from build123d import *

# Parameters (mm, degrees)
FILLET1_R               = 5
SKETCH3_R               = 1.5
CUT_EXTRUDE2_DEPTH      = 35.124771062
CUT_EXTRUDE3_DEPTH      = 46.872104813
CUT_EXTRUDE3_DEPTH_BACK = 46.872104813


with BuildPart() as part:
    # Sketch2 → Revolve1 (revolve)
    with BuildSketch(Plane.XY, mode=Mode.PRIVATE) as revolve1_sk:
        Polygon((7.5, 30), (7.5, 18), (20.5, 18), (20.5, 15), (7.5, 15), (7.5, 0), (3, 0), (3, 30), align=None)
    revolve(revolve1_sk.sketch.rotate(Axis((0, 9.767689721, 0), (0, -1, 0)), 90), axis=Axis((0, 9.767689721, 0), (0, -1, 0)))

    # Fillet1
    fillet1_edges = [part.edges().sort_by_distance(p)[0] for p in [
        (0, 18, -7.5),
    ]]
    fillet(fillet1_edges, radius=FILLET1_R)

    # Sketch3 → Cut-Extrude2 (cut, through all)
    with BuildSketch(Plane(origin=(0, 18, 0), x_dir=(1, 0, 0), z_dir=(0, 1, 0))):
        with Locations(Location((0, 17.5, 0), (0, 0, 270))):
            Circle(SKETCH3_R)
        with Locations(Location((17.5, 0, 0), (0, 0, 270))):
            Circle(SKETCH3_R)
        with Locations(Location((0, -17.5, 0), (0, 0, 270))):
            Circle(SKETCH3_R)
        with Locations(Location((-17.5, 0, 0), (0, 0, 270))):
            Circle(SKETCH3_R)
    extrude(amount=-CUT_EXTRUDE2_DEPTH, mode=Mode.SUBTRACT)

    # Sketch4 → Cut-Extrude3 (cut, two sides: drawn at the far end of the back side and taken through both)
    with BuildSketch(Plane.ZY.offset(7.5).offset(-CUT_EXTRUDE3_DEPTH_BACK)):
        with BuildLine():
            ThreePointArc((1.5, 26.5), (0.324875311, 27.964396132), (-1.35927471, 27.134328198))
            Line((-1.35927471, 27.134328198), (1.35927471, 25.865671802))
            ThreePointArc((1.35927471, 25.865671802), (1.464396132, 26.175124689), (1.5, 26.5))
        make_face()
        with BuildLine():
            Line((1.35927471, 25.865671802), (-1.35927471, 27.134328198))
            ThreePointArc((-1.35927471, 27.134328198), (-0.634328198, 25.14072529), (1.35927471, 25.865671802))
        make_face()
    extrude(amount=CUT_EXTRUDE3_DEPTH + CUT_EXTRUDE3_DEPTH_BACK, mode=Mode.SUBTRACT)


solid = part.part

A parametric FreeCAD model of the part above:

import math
import FreeCAD as App
import Part
import Sketcher
Q = App.Units.Quantity


def edges_at(feature, points):
    """Names of the edges that pass closest to the given points."""
    edges = feature.Shape.Edges
    near = lambda p: min(range(len(edges)), key=lambda i: edges[i].distToShape(Part.Vertex(*p))[0])
    return sorted({f"Edge{near(p) + 1}" for p in points})

doc = App.newDocument("Part")
body = doc.addObject("PartDesign::Body", "Body")

sketch1 = doc.addObject("Sketcher::SketchObject", "Sketch")
body.addObject(sketch1)
sketch1.AttachmentSupport = (doc.XY_Plane, [""])
sketch1.MapMode = "FlatFace"
sketch1.addGeometry([
    Part.LineSegment(App.Vector(7.5, 18, 0), App.Vector(7.5, 30, 0)),
    Part.LineSegment(App.Vector(7.5, 30, 0), App.Vector(3, 30, 0)),
    Part.LineSegment(App.Vector(3, 30, 0), App.Vector(3, 0, 0)),
    Part.LineSegment(App.Vector(3, 0, 0), App.Vector(7.5, 0, 0)),
    Part.LineSegment(App.Vector(7.5, 0, 0), App.Vector(7.5, 15, 0)),
    Part.LineSegment(App.Vector(7.5, 15, 0), App.Vector(20.5, 15, 0)),
    Part.LineSegment(App.Vector(20.5, 15, 0), App.Vector(20.5, 18, 0)),
    Part.LineSegment(App.Vector(20.5, 18, 0), App.Vector(7.5, 18, 0)),
], False)
sketch1.addConstraint([
    Sketcher.Constraint("Coincident", 0, 2, 1, 1),
    Sketcher.Constraint("Coincident", 1, 2, 2, 1),
    Sketcher.Constraint("Coincident", 2, 2, 3, 1),
    Sketcher.Constraint("Coincident", 3, 2, 4, 1),
    Sketcher.Constraint("Coincident", 4, 2, 5, 1),
    Sketcher.Constraint("Coincident", 5, 2, 6, 1),
    Sketcher.Constraint("Coincident", 6, 2, 7, 1),
    Sketcher.Constraint("Coincident", 7, 2, 0, 1),
    Sketcher.Constraint("Vertical", 0),
    Sketcher.Constraint("Horizontal", 1),
    Sketcher.Constraint("Vertical", 2),
    Sketcher.Constraint("Horizontal", 3),
    Sketcher.Constraint("Vertical", 4),
    Sketcher.Constraint("Horizontal", 5),
    Sketcher.Constraint("Vertical", 6),
    Sketcher.Constraint("Horizontal", 7),
    Sketcher.Constraint("PointOnObject", 2, 2, -1),
    Sketcher.Constraint("Vertical", 0, 2, 3, 2),
    Sketcher.Constraint("DistanceX", 5, 1, 5, 2, Q("13 mm")),
    Sketcher.Constraint("DistanceY", 0, 1, 0, 2, Q("12 mm")),
    Sketcher.Constraint("DistanceY", 2, 2, 2, 1, Q("30 mm")),
    Sketcher.Constraint("DistanceY", 4, 1, 4, 2, Q("15 mm")),
    Sketcher.Constraint("DistanceX", 1, 2, 1, 1, Q("4.5 mm")),
    Sketcher.Constraint("DistanceX", -1, 1, 1, 2, Q("3 mm")),
])
revolution = doc.addObject("PartDesign::Revolution", "Revolution")
body.addObject(revolution)
revolution.Profile = sketch1
revolution.ReferenceAxis = (sketch1, ["V_Axis"])
revolution.Angle = 360
doc.recompute()

fillet = doc.addObject("PartDesign::Fillet", "Fillet")
body.addObject(fillet)
fillet.Base = (revolution, edges_at(revolution, [(0, 18, -7.5)]))
fillet.Radius = 5

sketch2 = doc.addObject("Sketcher::SketchObject", "Sketch001")
body.addObject(sketch2)
sketch2.AttachmentSupport = (doc.XZ_Plane, [""])
sketch2.MapMode = "FlatFace"
sketch2.AttachmentOffset = App.Placement(App.Vector(0, 0, -18), App.Rotation())
sketch2.addGeometry([
    Part.Circle(App.Vector(0, -17.5, 0), App.Vector(0, 0, 1), 1.5),
    Part.Circle(App.Vector(17.5, 0, 0), App.Vector(0, 0, 1), 1.5),
    Part.Circle(App.Vector(0, 17.5, 0), App.Vector(0, 0, 1), 1.5),
    Part.Circle(App.Vector(-17.5, 0, 0), App.Vector(0, 0, 1), 1.5),
], False)
sketch2.addConstraint([
    Sketcher.Constraint("Equal", 0, 1),
    Sketcher.Constraint("Equal", 1, 2),
    Sketcher.Constraint("Equal", 2, 3),
    Sketcher.Constraint("Symmetric", 0, 3, 2, 3, -1, 1),
    Sketcher.Constraint("Symmetric", 1, 3, 3, 3, -1, 1),
    Sketcher.Constraint("PointOnObject", 0, 3, -2),
    Sketcher.Constraint("PointOnObject", 1, 3, -1),
    Sketcher.Constraint("Diameter", 0, Q("3 mm")),
    Sketcher.Constraint("DistanceY", 0, 3, 2, 3, Q("35 mm")),
    Sketcher.Constraint("DistanceX", 3, 3, 1, 3, Q("35 mm")),
])
pocket1 = doc.addObject("PartDesign::Pocket", "Pocket")
body.addObject(pocket1)
pocket1.Profile = sketch2
pocket1.Type = "ThroughAll"
pocket1.Reversed = True

sketch3 = doc.addObject("Sketcher::SketchObject", "Sketch002")
body.addObject(sketch3)
sketch3.AttachmentSupport = (doc.YZ_Plane, [""])
sketch3.MapMode = "FlatFace"
sketch3.AttachmentOffset = App.Placement(App.Vector(0, 0, -7.5), App.Rotation())
sketch3.addGeometry([
    Part.ArcOfCircle(Part.Circle(App.Vector(26.5, 0, 0), App.Vector(0, 0, 1), 1.5), math.radians(-65), math.radians(90)),
    Part.ArcOfCircle(Part.Circle(App.Vector(26.5, 0, 0), App.Vector(0, 0, 1), 1.5), math.radians(115), math.radians(295)),
    Part.ArcOfCircle(Part.Circle(App.Vector(26.5, 0, 0), App.Vector(0, 0, 1), 1.5), math.radians(90), math.radians(115)),
], False)
sketch3.addConstraint([
    Sketcher.Constraint("Tangent", 0, 1, 1, 2),
    Sketcher.Constraint("Tangent", 1, 1, 2, 2),
    Sketcher.Constraint("Tangent", 2, 1, 0, 2),
    Sketcher.Constraint("PointOnObject", 0, 3, -1),
    Sketcher.Constraint("Vertical", 1, 3, 2, 1),
    Sketcher.Constraint("Radius", 0, Q("1.5 mm")),
    Sketcher.Constraint("DistanceX", -1, 1, 0, 3, Q("26.5 mm")),
    Sketcher.Constraint("DistanceX", -1, 1, 0, 1, Q("27.134328 mm")),
    Sketcher.Constraint("DistanceX", -1, 1, 1, 1, Q("25.865672 mm")),
])
pocket2 = doc.addObject("PartDesign::Pocket", "Pocket001")
body.addObject(pocket2)
pocket2.Profile = sketch3
pocket2.Type = "ThroughAll"
pocket2.Midplane = True

doc.recompute()
